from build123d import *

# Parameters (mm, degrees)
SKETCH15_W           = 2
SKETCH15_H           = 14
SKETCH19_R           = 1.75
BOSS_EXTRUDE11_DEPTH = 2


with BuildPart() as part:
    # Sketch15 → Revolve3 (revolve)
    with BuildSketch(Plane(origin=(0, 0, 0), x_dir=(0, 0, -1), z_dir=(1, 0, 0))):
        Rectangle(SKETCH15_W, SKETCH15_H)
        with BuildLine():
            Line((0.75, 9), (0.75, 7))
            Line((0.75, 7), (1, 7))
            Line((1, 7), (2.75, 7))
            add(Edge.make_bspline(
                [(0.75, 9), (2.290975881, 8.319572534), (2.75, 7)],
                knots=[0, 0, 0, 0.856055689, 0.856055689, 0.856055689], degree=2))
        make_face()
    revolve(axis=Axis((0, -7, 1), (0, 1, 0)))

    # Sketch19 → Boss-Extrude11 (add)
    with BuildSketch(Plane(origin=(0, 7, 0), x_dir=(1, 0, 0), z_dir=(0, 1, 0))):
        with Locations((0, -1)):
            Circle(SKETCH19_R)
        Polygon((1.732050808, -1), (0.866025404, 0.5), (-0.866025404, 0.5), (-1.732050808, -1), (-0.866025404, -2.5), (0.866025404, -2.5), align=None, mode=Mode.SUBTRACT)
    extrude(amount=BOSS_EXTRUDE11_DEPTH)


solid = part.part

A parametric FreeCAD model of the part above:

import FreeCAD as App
import Part
import Sketcher
from FreeCAD import Vector
Q = App.Units.Quantity

doc = App.newDocument("Part")
body = doc.addObject("PartDesign::Body", "Body")

# Sketch on YZ plane
sketch1 = body.newObject("Sketcher::SketchObject", "Sketch")
sketch1.AttachmentSupport = (doc.getObject("YZ_Plane"), [""])
sketch1.MapMode = "FlatFace"
sketch1.addGeometry(Part.LineSegment(Vector(7, 1, 0), Vector(-7, 1, 0)), False)
sketch1.addGeometry(Part.LineSegment(Vector(-7, 1, 0), Vector(-7, -1, 0)), False)
sketch1.addGeometry(Part.LineSegment(Vector(-7, -1, 0), Vector(7, -1, 0)), False)
sketch1.addGeometry(Part.LineSegment(Vector(7, -1, 0), Vector(7, -2.75, 0)), False)
sketch1.addGeometry(Part.BSplineCurve([Vector(9, -0.75, 0), Vector(8.319573, -2.290976, 0), Vector(7, -2.75, 0)], [3, 3], [0, 0.856055689], False, 2, [1, 1, 1], False), False)
sketch1.addGeometry(Part.LineSegment(Vector(9, -0.75, 0), Vector(7, -0.75, 0)), False)
sketch1.addGeometry(Part.LineSegment(Vector(7, -0.75, 0), Vector(7, 1, 0)), False)
sketch1.addGeometry(Part.LineSegment(Vector(-7, 1, 0), Vector(9, 1, 0)), True)  # axis
sketch1.addConstraint(Sketcher.Constraint("Block", 4))
sketch1.addConstraint(Sketcher.Constraint("Coincident", 0, 2, 1, 1))
sketch1.addConstraint(Sketcher.Constraint("Coincident", 1, 2, 2, 1))
sketch1.addConstraint(Sketcher.Constraint("Coincident", 2, 2, 3, 1))
sketch1.addConstraint(Sketcher.Constraint("Coincident", 3, 2, 4, 2))
sketch1.addConstraint(Sketcher.Constraint("Coincident", 4, 1, 5, 1))
sketch1.addConstraint(Sketcher.Constraint("Coincident", 5, 2, 6, 1))
sketch1.addConstraint(Sketcher.Constraint("Coincident", 6, 2, 0, 1))
sketch1.addConstraint(Sketcher.Constraint("Horizontal", 0))
sketch1.addConstraint(Sketcher.Constraint("Vertical", 1))
sketch1.addConstraint(Sketcher.Constraint("Horizontal", 2))
sketch1.addConstraint(Sketcher.Constraint("Vertical", 3))
sketch1.addConstraint(Sketcher.Constraint("Horizontal", 5))
sketch1.addConstraint(Sketcher.Constraint("Vertical", 6))
sketch1.addConstraint(Sketcher.Constraint("Horizontal", 7))
sketch1.addConstraint(Sketcher.Constraint("Coincident", 7, 1, 0, 2))
sketch1.addConstraint(Sketcher.Constraint("Symmetric", 0, 2, 2, 2, -1, 1))
sketch1.addConstraint(Sketcher.Constraint("Vertical", 3, 2, 5, 2))
sketch1.addConstraint(Sketcher.Constraint("Equal", 5, 1))
sketch1.addConstraint(Sketcher.Constraint("DistanceX", 7, 1, 7, 2, Q("16 mm")))
revolution = body.newObject("PartDesign::Revolution", "Revolution")
revolution.Profile = sketch1
revolution.ReferenceAxis = (sketch1, ["Axis0"])
revolution.Angle = 360

# Sketch on XZ plane
sketch2 = body.newObject("Sketcher::SketchObject", "Sketch001")
sketch2.AttachmentSupport = (doc.getObject("XZ_Plane"), [""])
sketch2.MapMode = "FlatFace"
sketch2.AttachmentOffset = App.Placement(Vector(0, 0, -7), App.Rotation())
sketch2.addGeometry(Part.Circle(Vector(0, 1, 0), Vector(0, 0, 1), 1.8), False)
sketch2.addGeometry(Part.LineSegment(Vector(0.9, -0.5, 0), Vector(1.7, 1, 0)), False)
sketch2.addGeometry(Part.LineSegment(Vector(1.7, 1, 0), Vector(0.9, 2.5, 0)), False)
sketch2.addGeometry(Part.LineSegment(Vector(0.9, 2.5, 0), Vector(-0.9, 2.5, 0)), False)
sketch2.addGeometry(Part.LineSegment(Vector(-0.9, 2.5, 0), Vector(-1.7, 1, 0)), False)
sketch2.addGeometry(Part.LineSegment(Vector(-1.7, 1, 0), Vector(-0.9, -0.5, 0)), False)
sketch2.addGeometry(Part.LineSegment(Vector(-0.9, -0.5, 0), Vector(0.9, -0.5, 0)), False)
sketch2.addConstraint(Sketcher.Constraint("Coincident", 1, 2, 2, 1))
sketch2.addConstraint(Sketcher.Constraint("Coincident", 2, 2, 3, 1))
sketch2.addConstraint(Sketcher.Constraint("Coincident", 3, 2, 4, 1))
sketch2.addConstraint(Sketcher.Constraint("Coincident", 4, 2, 5, 1))
sketch2.addConstraint(Sketcher.Constraint("Coincident", 5, 2, 6, 1))
sketch2.addConstraint(Sketcher.Constraint("Coincident", 6, 2, 1, 1))
sketch2.addConstraint(Sketcher.Constraint("Horizontal", 3))
sketch2.addConstraint(Sketcher.Constraint("Horizontal", 6))
sketch2.addConstraint(Sketcher.Constraint("Symmetric", 1, 2, 4, 2, -2))
sketch2.addConstraint(Sketcher.Constraint("PointOnObject", 0, 3, -2))
sketch2.addConstraint(Sketcher.Constraint("Parallel", 1, 4))
sketch2.addConstraint(Sketcher.Constraint("Parallel", 2, 5))
sketch2.addConstraint(Sketcher.Constraint("Horizontal", 0, 3, 1, 2))
sketch2.addConstraint(Sketcher.Constraint("Vertical", 3, 2, 5, 2))
sketch2.addConstraint(Sketcher.Constraint("Vertical", 2, 2, 6, 2))
sketch2.addConstraint(Sketcher.Constraint("Diameter", 0, Q("3.5 mm")))
sketch2.addConstraint(Sketcher.Constraint("Angle", 1, Q("60 deg")))
sketch2.addConstraint(Sketcher.Constraint("DistanceY", -1, 1, 0, 3, Q("1 mm")))
sketch2.addConstraint(Sketcher.Constraint("DistanceY", 5, 2, 3, 2, Q("3 mm")))
sketch2.addConstraint(Sketcher.Constraint("DistanceX", 3, 2, 3, 1, Q("1.732051 mm")))
pad1 = body.newObject("PartDesign::Pad", "Pad")
pad1.Profile = sketch2
pad1.Length = 2
pad1.Reversed = True

doc.recompute()
